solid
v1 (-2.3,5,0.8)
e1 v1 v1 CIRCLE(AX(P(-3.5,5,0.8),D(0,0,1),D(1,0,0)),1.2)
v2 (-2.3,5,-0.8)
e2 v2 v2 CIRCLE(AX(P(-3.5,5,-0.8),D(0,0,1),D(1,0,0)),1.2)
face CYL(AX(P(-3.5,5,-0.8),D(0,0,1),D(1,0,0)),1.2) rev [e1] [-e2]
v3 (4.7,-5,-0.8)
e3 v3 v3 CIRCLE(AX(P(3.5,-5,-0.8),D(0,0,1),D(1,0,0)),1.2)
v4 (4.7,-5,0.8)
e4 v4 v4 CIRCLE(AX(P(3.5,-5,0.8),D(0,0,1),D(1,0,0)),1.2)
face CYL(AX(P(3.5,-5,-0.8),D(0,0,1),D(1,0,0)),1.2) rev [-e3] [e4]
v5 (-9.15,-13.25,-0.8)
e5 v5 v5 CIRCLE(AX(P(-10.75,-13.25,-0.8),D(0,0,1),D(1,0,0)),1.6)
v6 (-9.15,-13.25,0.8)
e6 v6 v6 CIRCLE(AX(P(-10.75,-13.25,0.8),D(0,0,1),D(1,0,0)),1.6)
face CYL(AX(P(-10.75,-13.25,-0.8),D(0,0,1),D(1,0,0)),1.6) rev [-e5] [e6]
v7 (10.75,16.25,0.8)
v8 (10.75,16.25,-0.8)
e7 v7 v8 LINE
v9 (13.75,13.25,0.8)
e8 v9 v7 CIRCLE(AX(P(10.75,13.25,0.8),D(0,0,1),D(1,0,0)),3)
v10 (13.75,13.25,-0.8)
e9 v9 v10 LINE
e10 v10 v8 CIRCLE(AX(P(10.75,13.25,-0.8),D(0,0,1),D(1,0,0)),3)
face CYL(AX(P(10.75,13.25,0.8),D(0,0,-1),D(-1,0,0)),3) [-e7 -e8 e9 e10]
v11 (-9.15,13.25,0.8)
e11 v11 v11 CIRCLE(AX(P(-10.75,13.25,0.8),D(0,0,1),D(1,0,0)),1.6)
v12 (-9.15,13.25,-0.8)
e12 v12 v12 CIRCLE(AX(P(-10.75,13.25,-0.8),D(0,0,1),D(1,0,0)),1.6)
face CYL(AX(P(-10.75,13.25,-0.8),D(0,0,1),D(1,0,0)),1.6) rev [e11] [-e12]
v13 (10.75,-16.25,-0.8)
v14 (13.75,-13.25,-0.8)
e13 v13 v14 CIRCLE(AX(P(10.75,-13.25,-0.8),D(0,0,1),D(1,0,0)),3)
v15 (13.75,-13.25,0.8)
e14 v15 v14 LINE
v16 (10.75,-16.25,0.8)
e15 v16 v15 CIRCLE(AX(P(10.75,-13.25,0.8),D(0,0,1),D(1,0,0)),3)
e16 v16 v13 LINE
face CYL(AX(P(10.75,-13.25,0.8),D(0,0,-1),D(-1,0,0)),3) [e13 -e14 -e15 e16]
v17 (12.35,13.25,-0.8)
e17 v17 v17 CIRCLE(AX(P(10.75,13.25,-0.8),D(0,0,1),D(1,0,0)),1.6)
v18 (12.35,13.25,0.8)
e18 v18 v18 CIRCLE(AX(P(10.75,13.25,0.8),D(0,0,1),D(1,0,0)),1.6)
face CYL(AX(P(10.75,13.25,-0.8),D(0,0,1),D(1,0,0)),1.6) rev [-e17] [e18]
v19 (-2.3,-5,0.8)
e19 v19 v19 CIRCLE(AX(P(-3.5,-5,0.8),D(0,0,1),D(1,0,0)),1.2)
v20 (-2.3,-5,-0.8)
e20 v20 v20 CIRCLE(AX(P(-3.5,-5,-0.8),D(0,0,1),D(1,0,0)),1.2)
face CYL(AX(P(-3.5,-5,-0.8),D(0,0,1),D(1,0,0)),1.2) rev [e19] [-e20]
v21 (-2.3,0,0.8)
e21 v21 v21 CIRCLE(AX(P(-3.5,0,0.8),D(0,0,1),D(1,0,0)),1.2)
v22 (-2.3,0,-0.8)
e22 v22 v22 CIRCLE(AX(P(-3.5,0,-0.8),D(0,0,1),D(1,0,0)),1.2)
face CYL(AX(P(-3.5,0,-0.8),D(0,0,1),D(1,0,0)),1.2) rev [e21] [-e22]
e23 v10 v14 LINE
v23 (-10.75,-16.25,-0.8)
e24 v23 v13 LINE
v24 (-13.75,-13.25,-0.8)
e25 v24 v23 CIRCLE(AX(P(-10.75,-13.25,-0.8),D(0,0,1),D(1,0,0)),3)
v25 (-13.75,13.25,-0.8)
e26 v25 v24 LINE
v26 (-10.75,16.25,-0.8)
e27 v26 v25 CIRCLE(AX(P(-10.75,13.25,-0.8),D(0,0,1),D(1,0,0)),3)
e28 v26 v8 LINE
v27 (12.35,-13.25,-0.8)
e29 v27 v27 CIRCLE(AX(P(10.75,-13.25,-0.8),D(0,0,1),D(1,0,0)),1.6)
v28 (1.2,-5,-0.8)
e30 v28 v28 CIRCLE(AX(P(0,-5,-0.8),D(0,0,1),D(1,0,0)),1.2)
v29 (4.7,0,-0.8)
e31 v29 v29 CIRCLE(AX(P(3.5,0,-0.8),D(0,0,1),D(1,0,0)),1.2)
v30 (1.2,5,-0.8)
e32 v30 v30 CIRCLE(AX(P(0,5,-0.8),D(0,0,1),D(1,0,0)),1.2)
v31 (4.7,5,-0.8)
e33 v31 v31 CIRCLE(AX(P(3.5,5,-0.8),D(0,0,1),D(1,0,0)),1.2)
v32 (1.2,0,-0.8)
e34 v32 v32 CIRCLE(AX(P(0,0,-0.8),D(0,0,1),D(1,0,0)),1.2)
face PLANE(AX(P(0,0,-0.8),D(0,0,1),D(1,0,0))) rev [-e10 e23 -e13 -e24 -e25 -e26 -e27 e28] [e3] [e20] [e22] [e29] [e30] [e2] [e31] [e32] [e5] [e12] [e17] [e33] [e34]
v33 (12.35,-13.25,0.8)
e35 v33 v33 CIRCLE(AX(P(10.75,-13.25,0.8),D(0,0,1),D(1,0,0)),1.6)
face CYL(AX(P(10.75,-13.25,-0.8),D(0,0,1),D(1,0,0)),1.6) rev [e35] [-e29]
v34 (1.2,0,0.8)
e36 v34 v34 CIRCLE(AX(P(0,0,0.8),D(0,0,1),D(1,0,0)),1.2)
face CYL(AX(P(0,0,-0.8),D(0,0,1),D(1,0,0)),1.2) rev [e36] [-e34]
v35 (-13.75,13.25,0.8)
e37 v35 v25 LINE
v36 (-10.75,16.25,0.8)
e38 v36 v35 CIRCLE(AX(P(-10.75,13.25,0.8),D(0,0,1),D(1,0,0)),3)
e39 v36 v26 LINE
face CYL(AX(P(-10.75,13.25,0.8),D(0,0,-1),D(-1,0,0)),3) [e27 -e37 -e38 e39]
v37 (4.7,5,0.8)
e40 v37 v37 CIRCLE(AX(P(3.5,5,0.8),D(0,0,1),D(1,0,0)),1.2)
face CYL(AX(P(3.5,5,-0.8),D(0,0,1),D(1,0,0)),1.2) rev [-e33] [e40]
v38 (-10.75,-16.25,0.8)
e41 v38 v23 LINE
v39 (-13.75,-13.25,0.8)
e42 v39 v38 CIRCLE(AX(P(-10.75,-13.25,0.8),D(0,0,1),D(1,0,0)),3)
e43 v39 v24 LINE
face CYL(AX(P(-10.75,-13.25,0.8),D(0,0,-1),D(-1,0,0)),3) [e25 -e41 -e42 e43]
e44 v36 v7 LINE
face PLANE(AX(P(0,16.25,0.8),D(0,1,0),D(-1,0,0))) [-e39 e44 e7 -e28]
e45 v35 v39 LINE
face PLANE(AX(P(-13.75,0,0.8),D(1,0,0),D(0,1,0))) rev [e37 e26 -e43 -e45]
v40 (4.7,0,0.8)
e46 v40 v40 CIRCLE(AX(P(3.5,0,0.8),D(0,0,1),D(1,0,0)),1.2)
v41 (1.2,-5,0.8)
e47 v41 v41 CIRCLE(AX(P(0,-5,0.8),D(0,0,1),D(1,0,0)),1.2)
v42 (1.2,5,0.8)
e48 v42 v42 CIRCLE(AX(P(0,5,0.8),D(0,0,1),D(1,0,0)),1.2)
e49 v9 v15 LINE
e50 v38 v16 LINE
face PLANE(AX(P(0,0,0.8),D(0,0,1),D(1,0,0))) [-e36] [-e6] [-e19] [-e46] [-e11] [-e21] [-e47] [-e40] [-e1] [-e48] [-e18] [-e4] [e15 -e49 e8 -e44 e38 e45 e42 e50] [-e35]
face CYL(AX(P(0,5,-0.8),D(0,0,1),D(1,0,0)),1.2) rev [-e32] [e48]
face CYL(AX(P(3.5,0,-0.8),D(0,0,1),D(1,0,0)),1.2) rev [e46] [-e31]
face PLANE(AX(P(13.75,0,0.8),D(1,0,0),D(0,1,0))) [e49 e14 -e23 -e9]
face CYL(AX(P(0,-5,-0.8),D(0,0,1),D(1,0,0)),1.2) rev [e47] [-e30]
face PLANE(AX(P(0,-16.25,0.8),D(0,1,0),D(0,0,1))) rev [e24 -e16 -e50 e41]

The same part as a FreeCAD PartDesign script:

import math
import FreeCAD as App
import Part
import Sketcher
from FreeCAD import Vector
Q = App.Units.Quantity

doc = App.newDocument("Part")
body = doc.addObject("PartDesign::Body", "Body")

# Sketch on XY plane
sketch1 = body.newObject("Sketcher::SketchObject", "Sketch")
sketch1.AttachmentSupport = (doc.getObject("XY_Plane"), [""])
sketch1.MapMode = "FlatFace"
sketch1.addGeometry(Part.LineSegment(Vector(-13.8, 13.2, 0), Vector(-13.8, -13.2, 0)), False)
sketch1.addGeometry(Part.ArcOfCircle(Part.Circle(Vector(-10.8, -13.3, 0), Vector(0, 0, 1), 3), math.radians(180), math.radians(270)), False)
sketch1.addGeometry(Part.LineSegment(Vector(-10.8, -16.2, 0), Vector(10.8, -16.2, 0)), False)
sketch1.addGeometry(Part.ArcOfCircle(Part.Circle(Vector(10.8, -13.3, 0), Vector(0, 0, 1), 3), math.radians(-90), math.radians(0)), False)
sketch1.addGeometry(Part.LineSegment(Vector(13.8, -13.2, 0), Vector(13.8, 13.2, 0)), False)
sketch1.addGeometry(Part.ArcOfCircle(Part.Circle(Vector(10.8, 13.3, 0), Vector(0, 0, 1), 3), math.radians(0), math.radians(90)), False)
sketch1.addGeometry(Part.LineSegment(Vector(10.8, 16.2, 0), Vector(-10.8, 16.2, 0)), False)
sketch1.addGeometry(Part.ArcOfCircle(Part.Circle(Vector(-10.8, 13.3, 0), Vector(0, 0, 1), 3), math.radians(90), math.radians(180)), False)
sketch1.addConstraint(Sketcher.Constraint("Tangent", 0, 2, 1, 1))
sketch1.addConstraint(Sketcher.Constraint("Tangent", 1, 2, 2, 1))
sketch1.addConstraint(Sketcher.Constraint("Tangent", 2, 2, 3, 1))
sketch1.addConstraint(Sketcher.Constraint("Tangent", 3, 2, 4, 1))
sketch1.addConstraint(Sketcher.Constraint("Tangent", 4, 2, 5, 1))
sketch1.addConstraint(Sketcher.Constraint("Tangent", 5, 2, 6, 1))
sketch1.addConstraint(Sketcher.Constraint("Tangent", 6, 2, 7, 1))
sketch1.addConstraint(Sketcher.Constraint("Tangent", 7, 2, 0, 1))
sketch1.addConstraint(Sketcher.Constraint("Vertical", 0))
sketch1.addConstraint(Sketcher.Constraint("Horizontal", 2))
sketch1.addConstraint(Sketcher.Constraint("Vertical", 4))
sketch1.addConstraint(Sketcher.Constraint("Horizontal", 6))
sketch1.addConstraint(Sketcher.Constraint("Equal", 1, 3))
sketch1.addConstraint(Sketcher.Constraint("Equal", 3, 5))
sketch1.addConstraint(Sketcher.Constraint("Equal", 5, 7))
sketch1.addConstraint(Sketcher.Constraint("Symmetric", 1, 3, 5, 3, -1, 1))
sketch1.addConstraint(Sketcher.Constraint("Radius", 1, Q("3 mm")))
sketch1.addConstraint(Sketcher.Constraint("DistanceX", 2, 1, 2, 2, Q("21.5 mm")))
sketch1.addConstraint(Sketcher.Constraint("DistanceY", 0, 2, 0, 1, Q("26.5 mm")))
pad1 = body.newObject("PartDesign::Pad", "Pad")
pad1.Profile = sketch1
pad1.Length = 1.6
pad1.Midplane = True

# Sketch on XY plane
sketch2 = body.newObject("Sketcher::SketchObject", "Sketch001")
sketch2.AttachmentSupport = (doc.getObject("XY_Plane"), [""])
sketch2.MapMode = "FlatFace"
sketch2.AttachmentOffset = App.Placement(Vector(0, 0, 0.8), App.Rotation())
sketch2.addGeometry(Part.Circle(Vector(10.8, 13.2, 0), Vector(0, 0, 1), 1.6), False)
sketch2.addGeometry(Part.Circle(Vector(10.8, -13.2, 0), Vector(0, 0, 1), 1.6), False)
sketch2.addGeometry(Part.Circle(Vector(-10.8, -13.2, 0), Vector(0, 0, 1), 1.6), False)
sketch2.addGeometry(Part.Circle(Vector(-10.8, 13.2, 0), Vector(0, 0, 1), 1.6), False)
sketch2.addConstraint(Sketcher.Constraint("Equal", 0, 1))
sketch2.addConstraint(Sketcher.Constraint("Equal", 1, 2))
sketch2.addConstraint(Sketcher.Constraint("Equal", 2, 3))
sketch2.addConstraint(Sketcher.Constraint("Symmetric", 0, 3, 2, 3, -1, 1))
sketch2.addConstraint(Sketcher.Constraint("Symmetric", 1, 3, 3, 3, -1, 1))
sketch2.addConstraint(Sketcher.Constraint("Symmetric", 1, 3, 2, 3, -2))
sketch2.addConstraint(Sketcher.Constraint("Diameter", 0, Q("3.2 mm")))
sketch2.addConstraint(Sketcher.Constraint("DistanceY", 1, 3, 0, 3, Q("26.5 mm")))
sketch2.addConstraint(Sketcher.Constraint("DistanceX", 2, 3, 1, 3, Q("21.5 mm")))
pocket1 = body.newObject("PartDesign::Pocket", "Pocket")
pocket1.Profile = sketch2
pocket1.Type = "ThroughAll"

# Sketch on XY plane
sketch3 = body.newObject("Sketcher::SketchObject", "Sketch002")
sketch3.AttachmentSupport = (doc.getObject("XY_Plane"), [""])
sketch3.MapMode = "FlatFace"
sketch3.AttachmentOffset = App.Placement(Vector(0, 0, 0.8), App.Rotation())
sketch3.addGeometry(Part.Circle(Vector(3.5, -5, 0), Vector(0, 0, 1), 1.2), False)
sketch3.addGeometry(Part.Circle(Vector(0, -5, 0), Vector(0, 0, 1), 1.2), False)
sketch3.addGeometry(Part.Circle(Vector(-3.5, -5, 0), Vector(0, 0, 1), 1.2), False)
sketch3.addGeometry(Part.Circle(Vector(3.5, 5, 0), Vector(0, 0, 1), 1.2), False)
sketch3.addGeometry(Part.Circle(Vector(0, 5, 0), Vector(0, 0, 1), 1.2), False)
sketch3.addGeometry(Part.Circle(Vector(-3.5, 5, 0), Vector(0, 0, 1), 1.2), False)
sketch3.addGeometry(Part.Circle(Vector(-3.5, 0, 0), Vector(0, 0, 1), 1.2), False)
sketch3.addGeometry(Part.Circle(Vector(0, 0, 0), Vector(0, 0, 1), 1.2), False)
sketch3.addGeometry(Part.Circle(Vector(3.5, 0, 0), Vector(0, 0, 1), 1.2), False)
sketch3.addConstraint(Sketcher.Constraint("Coincident", 7, 3, -1, 1))
sketch3.addConstraint(Sketcher.Constraint("Equal", 0, 1))
sketch3.addConstraint(Sketcher.Constraint("Equal", 1, 2))
sketch3.addConstraint(Sketcher.Constraint("Equal", 2, 3))
sketch3.addConstraint(Sketcher.Constraint("Equal", 3, 4))
sketch3.addConstraint(Sketcher.Constraint("Equal", 4, 5))
sketch3.addConstraint(Sketcher.Constraint("Equal", 5, 6))
sketch3.addConstraint(Sketcher.Constraint("Equal", 6, 7))
sketch3.addConstraint(Sketcher.Constraint("Equal", 7, 8))
sketch3.addConstraint(Sketcher.Constraint("Symmetric", 2, 3, 3, 3, -1, 1))
sketch3.addConstraint(Sketcher.Constraint("Symmetric", 1, 3, 4, 3, -1, 1))
sketch3.addConstraint(Sketcher.Constraint("Symmetric", 0, 3, 5, 3, -1, 1))
sketch3.addConstraint(Sketcher.Constraint("Symmetric", 6, 3, 8, 3, -1, 1))
sketch3.addConstraint(Sketcher.Constraint("Symmetric", 0, 3, 2, 3, -2))
sketch3.addConstraint(Sketcher.Constraint("PointOnObject", 1, 3, -2))
sketch3.addConstraint(Sketcher.Constraint("PointOnObject", 6, 3, -1))
sketch3.addConstraint(Sketcher.Constraint("Horizontal", 0, 3, 1, 3))
sketch3.addConstraint(Sketcher.Constraint("Vertical", 5, 3, 6, 3))
sketch3.addConstraint(Sketcher.Constraint("Diameter", 0, Q("2.4 mm")))
sketch3.addConstraint(Sketcher.Constraint("DistanceY", 0, 3, -1, 1, Q("5 mm")))
sketch3.addConstraint(Sketcher.Constraint("DistanceX", 2, 3, 0, 3, Q("7 mm")))
pocket2 = body.newObject("PartDesign::Pocket", "Pocket001")
pocket2.Profile = sketch3
pocket2.Type = "ThroughAll"

doc.recompute()
